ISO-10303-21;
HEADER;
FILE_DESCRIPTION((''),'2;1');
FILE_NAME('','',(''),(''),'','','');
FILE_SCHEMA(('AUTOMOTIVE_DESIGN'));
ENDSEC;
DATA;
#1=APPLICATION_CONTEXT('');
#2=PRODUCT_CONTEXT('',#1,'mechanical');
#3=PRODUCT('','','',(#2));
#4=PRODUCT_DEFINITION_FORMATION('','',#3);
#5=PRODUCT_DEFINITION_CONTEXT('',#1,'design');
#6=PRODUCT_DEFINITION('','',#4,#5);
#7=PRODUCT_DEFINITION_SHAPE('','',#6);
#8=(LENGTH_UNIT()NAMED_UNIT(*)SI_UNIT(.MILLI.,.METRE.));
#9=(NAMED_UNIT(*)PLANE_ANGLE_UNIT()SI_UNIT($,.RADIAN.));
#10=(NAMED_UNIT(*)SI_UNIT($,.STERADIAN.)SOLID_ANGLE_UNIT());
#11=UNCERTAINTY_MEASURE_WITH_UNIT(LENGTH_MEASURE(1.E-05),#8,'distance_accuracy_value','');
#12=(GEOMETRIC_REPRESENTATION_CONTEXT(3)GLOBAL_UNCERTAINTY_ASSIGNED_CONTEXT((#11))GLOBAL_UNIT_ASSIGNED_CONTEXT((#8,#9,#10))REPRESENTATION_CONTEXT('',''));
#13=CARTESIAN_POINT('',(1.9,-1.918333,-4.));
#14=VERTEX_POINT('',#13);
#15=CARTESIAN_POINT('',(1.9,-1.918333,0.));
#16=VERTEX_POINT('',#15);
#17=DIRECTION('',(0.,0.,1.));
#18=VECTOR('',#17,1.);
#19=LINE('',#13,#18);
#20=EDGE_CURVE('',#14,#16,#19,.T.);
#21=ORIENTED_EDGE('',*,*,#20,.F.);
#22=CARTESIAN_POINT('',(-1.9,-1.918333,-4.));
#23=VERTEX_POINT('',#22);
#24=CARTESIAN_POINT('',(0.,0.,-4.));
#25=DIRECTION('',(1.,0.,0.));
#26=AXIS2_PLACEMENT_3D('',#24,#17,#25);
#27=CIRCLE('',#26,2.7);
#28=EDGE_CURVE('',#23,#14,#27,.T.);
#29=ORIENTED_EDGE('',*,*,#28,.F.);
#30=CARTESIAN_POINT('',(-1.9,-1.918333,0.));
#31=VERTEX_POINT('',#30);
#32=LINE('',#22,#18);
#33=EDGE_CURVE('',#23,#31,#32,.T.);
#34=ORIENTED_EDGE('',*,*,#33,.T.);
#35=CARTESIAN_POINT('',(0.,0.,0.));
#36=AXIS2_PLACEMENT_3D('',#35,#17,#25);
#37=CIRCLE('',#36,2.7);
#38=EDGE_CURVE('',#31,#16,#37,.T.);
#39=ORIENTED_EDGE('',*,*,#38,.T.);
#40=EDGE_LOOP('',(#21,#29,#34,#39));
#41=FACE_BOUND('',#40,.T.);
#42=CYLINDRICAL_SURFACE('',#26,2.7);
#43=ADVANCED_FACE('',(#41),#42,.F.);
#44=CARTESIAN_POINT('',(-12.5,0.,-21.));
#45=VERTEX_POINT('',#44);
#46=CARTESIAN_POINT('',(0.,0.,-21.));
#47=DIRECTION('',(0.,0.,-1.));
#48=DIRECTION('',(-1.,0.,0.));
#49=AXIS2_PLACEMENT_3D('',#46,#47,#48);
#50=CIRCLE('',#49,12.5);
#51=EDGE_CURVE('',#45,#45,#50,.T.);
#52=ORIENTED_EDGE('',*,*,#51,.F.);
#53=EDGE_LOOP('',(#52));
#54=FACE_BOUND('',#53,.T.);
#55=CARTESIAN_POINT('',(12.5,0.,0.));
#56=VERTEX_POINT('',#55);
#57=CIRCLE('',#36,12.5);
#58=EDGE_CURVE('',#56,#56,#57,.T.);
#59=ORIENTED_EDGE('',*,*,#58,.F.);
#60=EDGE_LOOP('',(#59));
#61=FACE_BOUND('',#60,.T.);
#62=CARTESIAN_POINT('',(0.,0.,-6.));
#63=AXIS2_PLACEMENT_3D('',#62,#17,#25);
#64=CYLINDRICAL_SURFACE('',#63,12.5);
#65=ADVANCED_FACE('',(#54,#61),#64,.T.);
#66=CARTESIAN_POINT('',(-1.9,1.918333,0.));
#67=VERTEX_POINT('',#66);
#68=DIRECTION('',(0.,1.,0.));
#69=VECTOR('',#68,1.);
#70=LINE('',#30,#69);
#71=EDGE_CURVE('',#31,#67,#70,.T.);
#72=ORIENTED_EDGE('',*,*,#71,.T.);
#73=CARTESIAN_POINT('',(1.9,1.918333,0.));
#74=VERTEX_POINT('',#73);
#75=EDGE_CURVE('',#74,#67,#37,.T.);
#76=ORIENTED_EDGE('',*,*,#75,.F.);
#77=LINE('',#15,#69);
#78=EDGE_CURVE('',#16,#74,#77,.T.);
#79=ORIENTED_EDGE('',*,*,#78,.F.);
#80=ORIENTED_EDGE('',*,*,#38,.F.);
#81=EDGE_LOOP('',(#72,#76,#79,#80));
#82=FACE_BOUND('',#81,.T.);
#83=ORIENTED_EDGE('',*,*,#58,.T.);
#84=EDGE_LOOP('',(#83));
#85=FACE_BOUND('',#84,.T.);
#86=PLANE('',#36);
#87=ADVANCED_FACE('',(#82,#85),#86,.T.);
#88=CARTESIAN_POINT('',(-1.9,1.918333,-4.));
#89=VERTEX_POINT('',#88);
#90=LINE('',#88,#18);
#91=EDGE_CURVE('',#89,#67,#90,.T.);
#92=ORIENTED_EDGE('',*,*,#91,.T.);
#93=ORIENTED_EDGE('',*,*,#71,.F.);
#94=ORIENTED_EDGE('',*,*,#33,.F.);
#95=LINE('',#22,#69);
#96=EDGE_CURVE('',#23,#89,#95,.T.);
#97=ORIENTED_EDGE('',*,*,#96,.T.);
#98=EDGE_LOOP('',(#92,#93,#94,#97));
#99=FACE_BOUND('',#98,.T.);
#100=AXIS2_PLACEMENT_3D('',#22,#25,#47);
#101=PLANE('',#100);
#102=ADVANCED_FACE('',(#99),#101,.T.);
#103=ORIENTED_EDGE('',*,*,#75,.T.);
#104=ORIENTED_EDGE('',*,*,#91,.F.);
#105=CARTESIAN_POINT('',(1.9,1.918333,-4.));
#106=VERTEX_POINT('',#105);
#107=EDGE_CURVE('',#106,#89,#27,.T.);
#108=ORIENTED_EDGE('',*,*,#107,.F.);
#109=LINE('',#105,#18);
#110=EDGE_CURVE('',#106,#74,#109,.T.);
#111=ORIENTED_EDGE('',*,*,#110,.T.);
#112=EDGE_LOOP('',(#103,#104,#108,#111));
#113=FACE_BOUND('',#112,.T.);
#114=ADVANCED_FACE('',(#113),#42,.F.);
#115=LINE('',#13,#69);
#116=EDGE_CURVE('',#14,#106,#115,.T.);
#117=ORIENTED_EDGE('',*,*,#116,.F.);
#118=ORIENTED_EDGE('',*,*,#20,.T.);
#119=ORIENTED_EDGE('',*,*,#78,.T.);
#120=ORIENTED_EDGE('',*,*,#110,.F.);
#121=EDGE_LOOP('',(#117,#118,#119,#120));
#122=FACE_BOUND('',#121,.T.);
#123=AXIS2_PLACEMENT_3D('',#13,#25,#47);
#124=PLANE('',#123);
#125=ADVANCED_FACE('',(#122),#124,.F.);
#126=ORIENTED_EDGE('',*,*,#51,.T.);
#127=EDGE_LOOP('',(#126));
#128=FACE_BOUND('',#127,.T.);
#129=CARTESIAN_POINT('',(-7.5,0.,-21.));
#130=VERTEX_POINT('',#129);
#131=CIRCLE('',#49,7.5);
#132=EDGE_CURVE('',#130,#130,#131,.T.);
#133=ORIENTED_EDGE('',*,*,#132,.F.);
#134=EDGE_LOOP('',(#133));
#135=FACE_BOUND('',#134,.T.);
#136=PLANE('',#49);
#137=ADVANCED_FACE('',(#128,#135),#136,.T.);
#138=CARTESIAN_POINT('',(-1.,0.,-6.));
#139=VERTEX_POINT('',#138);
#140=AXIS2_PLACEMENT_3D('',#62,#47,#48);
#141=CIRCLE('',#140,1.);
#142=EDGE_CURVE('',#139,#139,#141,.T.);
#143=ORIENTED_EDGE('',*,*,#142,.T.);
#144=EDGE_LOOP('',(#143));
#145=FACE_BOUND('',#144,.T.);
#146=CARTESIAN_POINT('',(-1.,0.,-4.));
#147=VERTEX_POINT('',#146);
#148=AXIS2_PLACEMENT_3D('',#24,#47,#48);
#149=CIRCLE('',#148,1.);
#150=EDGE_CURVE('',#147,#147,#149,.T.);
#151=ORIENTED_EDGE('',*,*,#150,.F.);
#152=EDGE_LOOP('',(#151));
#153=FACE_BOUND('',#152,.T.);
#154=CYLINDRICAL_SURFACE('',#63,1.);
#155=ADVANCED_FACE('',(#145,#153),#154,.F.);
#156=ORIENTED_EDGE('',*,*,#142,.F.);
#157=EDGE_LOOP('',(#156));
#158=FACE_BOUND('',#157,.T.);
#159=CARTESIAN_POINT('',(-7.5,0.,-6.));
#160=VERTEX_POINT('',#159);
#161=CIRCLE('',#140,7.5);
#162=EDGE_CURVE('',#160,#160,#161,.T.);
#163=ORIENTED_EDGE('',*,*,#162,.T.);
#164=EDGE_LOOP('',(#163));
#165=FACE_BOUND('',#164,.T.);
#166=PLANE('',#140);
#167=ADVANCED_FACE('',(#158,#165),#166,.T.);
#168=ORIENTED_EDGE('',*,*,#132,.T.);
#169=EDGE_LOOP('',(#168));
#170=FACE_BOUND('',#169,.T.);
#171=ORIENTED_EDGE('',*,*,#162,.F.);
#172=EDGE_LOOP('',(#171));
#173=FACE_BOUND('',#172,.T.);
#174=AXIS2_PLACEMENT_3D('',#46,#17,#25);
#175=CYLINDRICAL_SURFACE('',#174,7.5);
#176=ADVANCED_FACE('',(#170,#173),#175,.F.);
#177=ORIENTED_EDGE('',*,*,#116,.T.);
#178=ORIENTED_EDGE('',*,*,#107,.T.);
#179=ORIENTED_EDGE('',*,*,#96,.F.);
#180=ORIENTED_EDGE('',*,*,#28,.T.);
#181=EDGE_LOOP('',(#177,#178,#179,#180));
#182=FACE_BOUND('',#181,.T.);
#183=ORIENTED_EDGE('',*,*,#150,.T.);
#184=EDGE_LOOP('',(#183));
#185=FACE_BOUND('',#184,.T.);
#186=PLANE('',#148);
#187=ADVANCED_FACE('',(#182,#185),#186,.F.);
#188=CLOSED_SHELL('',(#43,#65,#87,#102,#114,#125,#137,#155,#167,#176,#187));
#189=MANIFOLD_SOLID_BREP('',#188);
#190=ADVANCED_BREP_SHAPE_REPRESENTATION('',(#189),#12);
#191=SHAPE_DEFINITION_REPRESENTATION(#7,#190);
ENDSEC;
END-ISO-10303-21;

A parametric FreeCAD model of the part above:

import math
import FreeCAD as App
import Part
import Sketcher

V = App.Vector
Q = App.Units.Quantity

doc = App.newDocument("Part")
params = doc.addObject("Spreadsheet::Sheet", "Params")
for row, (alias, value) in enumerate([
    ("sketch1_diameter", "50 mm"),
    ("sketch1_radius", "2.7 mm"),
    ("pad1_length", "4 mm"),
    ("sketch2_diameter", "50 mm"),
    ("sketch2_diameter2", "2 mm"),
    ("pad2_length", "2 mm"),
    ("sketch3_radius", "21 mm"),
    ("pocket1_length", "73.721684 mm"),
    ("sketch4_diameter", "50 mm"),
    ("sketch4_diameter2", "25 mm"),
    ("sketch5_diameter", "25 mm"),
    ("sketch5_diameter2", "15 mm"),
    ("pad3_length", "15 mm"),
], start=1):
    params.set(f"A{row}", alias)
    params.set(f"B{row}", "=" + value)
    params.setAlias(f"B{row}", alias)

body = doc.addObject("PartDesign::Body", "Body")

# Sketch on XY plane
sketch1 = body.newObject("Sketcher::SketchObject", "Sketch")
sketch1.AttachmentSupport = (doc.getObject("XY_Plane"), [""])
sketch1.MapMode = "FlatFace"
sketch1.addGeometry(Part.Circle(V(0, 0, 0), V(0, 0, 1), 25), False)
sketch1.addGeometry(Part.LineSegment(V(1.9, 1.9, 0), V(1.9, -1.9, 0)), False)
sketch1.addGeometry(Part.ArcOfCircle(Part.Circle(V(0, 0, 0), V(0, 0, 1), 2.7), math.radians(-135), math.radians(-45)), False)
sketch1.addGeometry(Part.LineSegment(V(-1.9, -1.9, 0), V(-1.9, 1.9, 0)), False)
sketch1.addGeometry(Part.ArcOfCircle(Part.Circle(V(0, 0, 0), V(0, 0, 1), 2.7), math.radians(45), math.radians(135)), False)
sketch1.addConstraint(Sketcher.Constraint("Coincident", 1, 2, 2, 2))
sketch1.addConstraint(Sketcher.Constraint("Coincident", 2, 1, 3, 1))
sketch1.addConstraint(Sketcher.Constraint("Coincident", 3, 2, 4, 2))
sketch1.addConstraint(Sketcher.Constraint("Coincident", 4, 1, 1, 1))
sketch1.addConstraint(Sketcher.Constraint("Vertical", 1))
sketch1.addConstraint(Sketcher.Constraint("Vertical", 3))
sketch1.addConstraint(Sketcher.Constraint("Coincident", 0, 3, -1, 1))
sketch1.addConstraint(Sketcher.Constraint("Coincident", 2, 3, -1, 1))
sketch1.addConstraint(Sketcher.Constraint("Coincident", 4, 3, -1, 1))
sketch1.addConstraint(Sketcher.Constraint("Equal", 2, 4))
sketch1.addConstraint(Sketcher.Constraint("Horizontal", 1, 2, 2, 1))
sketch1.addConstraint(Sketcher.Constraint("Diameter", 0, Q("50 mm")))
sketch1.addConstraint(Sketcher.Constraint("Radius", 2, Q("2.7 mm")))
sketch1.addConstraint(Sketcher.Constraint("DistanceX", -1, 1, 1, 2, Q("1.9 mm")))
sketch1.setExpression("Constraints[11]", "Params.sketch1_diameter")
sketch1.setExpression("Constraints[12]", "Params.sketch1_radius")
pad1 = body.newObject("PartDesign::Pad", "Pad")
pad1.Profile = sketch1
pad1.setExpression("Length", "Params.pad1_length")
pad1.Reversed = True

# Sketch on XY plane
sketch2 = body.newObject("Sketcher::SketchObject", "Sketch001")
sketch2.AttachmentSupport = (doc.getObject("XY_Plane"), [""])
sketch2.MapMode = "FlatFace"
sketch2.AttachmentOffset = App.Placement(V(0, 0, -4), App.Rotation())
sketch2.addGeometry(Part.Circle(V(0, 0, 0), V(0, 0, 1), 25), False)
sketch2.addGeometry(Part.Circle(V(0, 0, 0), V(0, 0, 1), 1), False)
sketch2.addConstraint(Sketcher.Constraint("Coincident", 0, 3, -1, 1))
sketch2.addConstraint(Sketcher.Constraint("Coincident", 1, 3, -1, 1))
sketch2.addConstraint(Sketcher.Constraint("Diameter", 0, Q("50 mm")))
sketch2.addConstraint(Sketcher.Constraint("Diameter", 1, Q("2 mm")))
sketch2.setExpression("Constraints[2]", "Params.sketch2_diameter")
sketch2.setExpression("Constraints[3]", "Params.sketch2_diameter2")
pad2 = body.newObject("PartDesign::Pad", "Pad001")
pad2.Profile = sketch2
pad2.setExpression("Length", "Params.pad2_length")
pad2.Reversed = True

# Sketch on XY plane
sketch3 = body.newObject("Sketcher::SketchObject", "Sketch002")
sketch3.AttachmentSupport = (doc.getObject("XY_Plane"), [""])
sketch3.MapMode = "FlatFace"
sketch3.addGeometry(Part.LineSegment(V(-0.9, 18, 0), V(0.9, 18, 0)), False)
sketch3.addGeometry(Part.LineSegment(V(0.9, 18, 0), V(1, 21, 0)), False)
sketch3.addGeometry(Part.ArcOfCircle(Part.Circle(V(0, 0, 0), V(0, 0, 1), 21), math.radians(87.27), math.radians(92.73)), False)
sketch3.addGeometry(Part.LineSegment(V(-1, 21, 0), V(-0.9, 18, 0)), False)
sketch3.addConstraint(Sketcher.Constraint("Coincident", 0, 2, 1, 1))
sketch3.addConstraint(Sketcher.Constraint("Coincident", 1, 2, 2, 1))
sketch3.addConstraint(Sketcher.Constraint("Coincident", 2, 2, 3, 1))
sketch3.addConstraint(Sketcher.Constraint("Coincident", 3, 2, 0, 1))
sketch3.addConstraint(Sketcher.Constraint("Horizontal", 0))
sketch3.addConstraint(Sketcher.Constraint("Coincident", 2, 3, -1, 1))
sketch3.addConstraint(Sketcher.Constraint("Horizontal", 1, 2, 2, 2))
sketch3.addConstraint(Sketcher.Constraint("Equal", 1, 3))
sketch3.addConstraint(Sketcher.Constraint("Radius", 2, Q("21 mm")))
sketch3.addConstraint(Sketcher.Constraint("DistanceY", -1, 1, 0, 2, Q("18 mm")))
sketch3.addConstraint(Sketcher.Constraint("DistanceX", 0, 1, 0, 2, Q("1.714286 mm")))
sketch3.addConstraint(Sketcher.Constraint("DistanceX", -1, 1, 1, 2, Q("0.998868 mm")))
sketch3.setExpression("Constraints[8]", "Params.sketch3_radius")
pocket1 = body.newObject("PartDesign::Pocket", "Pocket")
pocket1.Profile = sketch3
pocket1.setExpression("Length", "Params.pocket1_length")
pocket1.Midplane = True
doc.recompute()

polarpattern = body.newObject("PartDesign::PolarPattern", "PolarPattern")
polarpattern.Originals = [pocket1]
polarpattern.Axis = (doc.getObject("Z_Axis"), [""])
polarpattern.Angle = 360
polarpattern.Occurrences = 30
body.Tip = polarpattern

# Sketch on XY plane
sketch4 = body.newObject("Sketcher::SketchObject", "Sketch003")
sketch4.AttachmentSupport = (doc.getObject("XY_Plane"), [""])
sketch4.MapMode = "FlatFace"
sketch4.addGeometry(Part.Circle(V(0, 0, 0), V(0, 0, 1), 25), False)
sketch4.addGeometry(Part.Circle(V(0, 0, 0), V(0, 0, 1), 12), False)
sketch4.addConstraint(Sketcher.Constraint("Coincident", 0, 3, -1, 1))
sketch4.addConstraint(Sketcher.Constraint("Coincident", 1, 3, -1, 1))
sketch4.addConstraint(Sketcher.Constraint("Diameter", 0, Q("50 mm")))
sketch4.addConstraint(Sketcher.Constraint("Diameter", 1, Q("25 mm")))
sketch4.setExpression("Constraints[2]", "Params.sketch4_diameter")
sketch4.setExpression("Constraints[3]", "Params.sketch4_diameter2")
pocket2 = body.newObject("PartDesign::Pocket", "Pocket001")
pocket2.Profile = sketch4
pocket2.Type = "ThroughAll"

# Sketch on XY plane
sketch5 = body.newObject("Sketcher::SketchObject", "Sketch004")
sketch5.AttachmentSupport = (doc.getObject("XY_Plane"), [""])
sketch5.MapMode = "FlatFace"
sketch5.AttachmentOffset = App.Placement(V(0, 0, -6), App.Rotation())
sketch5.addGeometry(Part.Circle(V(0, 0, 0), V(0, 0, 1), 12), False)
sketch5.addGeometry(Part.Circle(V(0, 0, 0), V(0, 0, 1), 8), False)
sketch5.addConstraint(Sketcher.Constraint("Coincident", 0, 3, -1, 1))
sketch5.addConstraint(Sketcher.Constraint("Coincident", 1, 3, -1, 1))
sketch5.addConstraint(Sketcher.Constraint("Diameter", 0, Q("25 mm")))
sketch5.addConstraint(Sketcher.Constraint("Diameter", 1, Q("15 mm")))
sketch5.setExpression("Constraints[2]", "Params.sketch5_diameter")
sketch5.setExpression("Constraints[3]", "Params.sketch5_diameter2")
pad3 = body.newObject("PartDesign::Pad", "Pad002")
pad3.Profile = sketch5
pad3.setExpression("Length", "Params.pad3_length")
pad3.Reversed = True

doc.recompute()
